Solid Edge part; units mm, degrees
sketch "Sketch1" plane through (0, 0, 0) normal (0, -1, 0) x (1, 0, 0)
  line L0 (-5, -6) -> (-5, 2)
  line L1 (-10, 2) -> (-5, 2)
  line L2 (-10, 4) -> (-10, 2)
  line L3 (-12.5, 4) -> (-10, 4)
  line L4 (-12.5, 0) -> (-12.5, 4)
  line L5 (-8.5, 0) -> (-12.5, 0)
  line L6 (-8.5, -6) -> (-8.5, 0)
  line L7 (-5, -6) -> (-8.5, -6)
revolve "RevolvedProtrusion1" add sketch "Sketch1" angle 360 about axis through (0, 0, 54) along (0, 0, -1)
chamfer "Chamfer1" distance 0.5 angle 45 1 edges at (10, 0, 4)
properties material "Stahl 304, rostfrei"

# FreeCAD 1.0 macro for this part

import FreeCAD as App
import Part
import Sketcher
from FreeCAD import Vector


def edges_at(feature, points):
    """Names of the edges that pass closest to the given points."""
    edges = feature.Shape.Edges
    near = lambda p: min(range(len(edges)), key=lambda i: edges[i].distToShape(Part.Vertex(*p))[0])
    return sorted({f"Edge{near(p) + 1}" for p in points})

doc = App.newDocument("Part")
body = doc.addObject("PartDesign::Body", "Body")

sketch1 = body.newObject("Sketcher::SketchObject", "Sketch")
sketch1.AttachmentSupport = (doc.getObject("XZ_Plane"), [""])
sketch1.MapMode = "FlatFace"
sketch1.addGeometry(Part.LineSegment(Vector(-8.5, -6, 0), Vector(-5, -6, 0)), False)
sketch1.addGeometry(Part.LineSegment(Vector(-5, -6, 0), Vector(-5, 2, 0)), False)
sketch1.addGeometry(Part.LineSegment(Vector(-5, 2, 0), Vector(-10, 2, 0)), False)
sketch1.addGeometry(Part.LineSegment(Vector(-10, 2, 0), Vector(-10, 4, 0)), False)
sketch1.addGeometry(Part.LineSegment(Vector(-10, 4, 0), Vector(-12.5, 4, 0)), False)
sketch1.addGeometry(Part.LineSegment(Vector(-12.5, 4, 0), Vector(-12.5, 0, 0)), False)
sketch1.addGeometry(Part.LineSegment(Vector(-12.5, 0, 0), Vector(-8.5, 0, 0)), False)
sketch1.addGeometry(Part.LineSegment(Vector(-8.5, 0, 0), Vector(-8.5, -6, 0)), False)
sketch1.addConstraint(Sketcher.Constraint("Coincident", 0, 2, 1, 1))
sketch1.addConstraint(Sketcher.Constraint("Coincident", 1, 2, 2, 1))
sketch1.addConstraint(Sketcher.Constraint("Coincident", 2, 2, 3, 1))
sketch1.addConstraint(Sketcher.Constraint("Coincident", 3, 2, 4, 1))
sketch1.addConstraint(Sketcher.Constraint("Coincident", 4, 2, 5, 1))
sketch1.addConstraint(Sketcher.Constraint("Coincident", 5, 2, 6, 1))
sketch1.addConstraint(Sketcher.Constraint("Coincident", 6, 2, 7, 1))
sketch1.addConstraint(Sketcher.Constraint("Coincident", 7, 2, 0, 1))
sketch1.addConstraint(Sketcher.Constraint("Horizontal", 0))
sketch1.addConstraint(Sketcher.Constraint("Vertical", 1))
sketch1.addConstraint(Sketcher.Constraint("Horizontal", 2))
sketch1.addConstraint(Sketcher.Constraint("Vertical", 3))
sketch1.addConstraint(Sketcher.Constraint("Horizontal", 4))
sketch1.addConstraint(Sketcher.Constraint("Vertical", 5))
sketch1.addConstraint(Sketcher.Constraint("Horizontal", 6))
sketch1.addConstraint(Sketcher.Constraint("Vertical", 7))
sketch1.addConstraint(Sketcher.Constraint("PointOnObject", 5, 2, -1))
sketch1.addConstraint(Sketcher.Constraint("Equal", 6, 5))
sketch1.addConstraint(Sketcher.Constraint("DistanceX", 2, 2, 2, 1, 5.0))
sketch1.addConstraint(Sketcher.Constraint("DistanceX", 6, 1, 6, 2, 4.0))
sketch1.addConstraint(Sketcher.Constraint("DistanceY", 1, 1, 1, 2, 8.0))
sketch1.addConstraint(Sketcher.Constraint("DistanceY", 3, 1, 3, 2, 2.0))
sketch1.addConstraint(Sketcher.Constraint("DistanceX", 0, 1, 0, 2, 3.5))
sketch1.addConstraint(Sketcher.Constraint("DistanceX", 0, 2, -1, 1, 5.0))
revolution = body.newObject("PartDesign::Revolution", "Revolution")
revolution.Profile = sketch1
revolution.ReferenceAxis = (sketch1, ["V_Axis"])
revolution.Angle = 360
doc.recompute()

chamfer = body.newObject("PartDesign::Chamfer", "Chamfer")
chamfer.Base = (revolution, edges_at(revolution, [(10, 0, 4)]))
chamfer.Size = 0.5

doc.recompute()
